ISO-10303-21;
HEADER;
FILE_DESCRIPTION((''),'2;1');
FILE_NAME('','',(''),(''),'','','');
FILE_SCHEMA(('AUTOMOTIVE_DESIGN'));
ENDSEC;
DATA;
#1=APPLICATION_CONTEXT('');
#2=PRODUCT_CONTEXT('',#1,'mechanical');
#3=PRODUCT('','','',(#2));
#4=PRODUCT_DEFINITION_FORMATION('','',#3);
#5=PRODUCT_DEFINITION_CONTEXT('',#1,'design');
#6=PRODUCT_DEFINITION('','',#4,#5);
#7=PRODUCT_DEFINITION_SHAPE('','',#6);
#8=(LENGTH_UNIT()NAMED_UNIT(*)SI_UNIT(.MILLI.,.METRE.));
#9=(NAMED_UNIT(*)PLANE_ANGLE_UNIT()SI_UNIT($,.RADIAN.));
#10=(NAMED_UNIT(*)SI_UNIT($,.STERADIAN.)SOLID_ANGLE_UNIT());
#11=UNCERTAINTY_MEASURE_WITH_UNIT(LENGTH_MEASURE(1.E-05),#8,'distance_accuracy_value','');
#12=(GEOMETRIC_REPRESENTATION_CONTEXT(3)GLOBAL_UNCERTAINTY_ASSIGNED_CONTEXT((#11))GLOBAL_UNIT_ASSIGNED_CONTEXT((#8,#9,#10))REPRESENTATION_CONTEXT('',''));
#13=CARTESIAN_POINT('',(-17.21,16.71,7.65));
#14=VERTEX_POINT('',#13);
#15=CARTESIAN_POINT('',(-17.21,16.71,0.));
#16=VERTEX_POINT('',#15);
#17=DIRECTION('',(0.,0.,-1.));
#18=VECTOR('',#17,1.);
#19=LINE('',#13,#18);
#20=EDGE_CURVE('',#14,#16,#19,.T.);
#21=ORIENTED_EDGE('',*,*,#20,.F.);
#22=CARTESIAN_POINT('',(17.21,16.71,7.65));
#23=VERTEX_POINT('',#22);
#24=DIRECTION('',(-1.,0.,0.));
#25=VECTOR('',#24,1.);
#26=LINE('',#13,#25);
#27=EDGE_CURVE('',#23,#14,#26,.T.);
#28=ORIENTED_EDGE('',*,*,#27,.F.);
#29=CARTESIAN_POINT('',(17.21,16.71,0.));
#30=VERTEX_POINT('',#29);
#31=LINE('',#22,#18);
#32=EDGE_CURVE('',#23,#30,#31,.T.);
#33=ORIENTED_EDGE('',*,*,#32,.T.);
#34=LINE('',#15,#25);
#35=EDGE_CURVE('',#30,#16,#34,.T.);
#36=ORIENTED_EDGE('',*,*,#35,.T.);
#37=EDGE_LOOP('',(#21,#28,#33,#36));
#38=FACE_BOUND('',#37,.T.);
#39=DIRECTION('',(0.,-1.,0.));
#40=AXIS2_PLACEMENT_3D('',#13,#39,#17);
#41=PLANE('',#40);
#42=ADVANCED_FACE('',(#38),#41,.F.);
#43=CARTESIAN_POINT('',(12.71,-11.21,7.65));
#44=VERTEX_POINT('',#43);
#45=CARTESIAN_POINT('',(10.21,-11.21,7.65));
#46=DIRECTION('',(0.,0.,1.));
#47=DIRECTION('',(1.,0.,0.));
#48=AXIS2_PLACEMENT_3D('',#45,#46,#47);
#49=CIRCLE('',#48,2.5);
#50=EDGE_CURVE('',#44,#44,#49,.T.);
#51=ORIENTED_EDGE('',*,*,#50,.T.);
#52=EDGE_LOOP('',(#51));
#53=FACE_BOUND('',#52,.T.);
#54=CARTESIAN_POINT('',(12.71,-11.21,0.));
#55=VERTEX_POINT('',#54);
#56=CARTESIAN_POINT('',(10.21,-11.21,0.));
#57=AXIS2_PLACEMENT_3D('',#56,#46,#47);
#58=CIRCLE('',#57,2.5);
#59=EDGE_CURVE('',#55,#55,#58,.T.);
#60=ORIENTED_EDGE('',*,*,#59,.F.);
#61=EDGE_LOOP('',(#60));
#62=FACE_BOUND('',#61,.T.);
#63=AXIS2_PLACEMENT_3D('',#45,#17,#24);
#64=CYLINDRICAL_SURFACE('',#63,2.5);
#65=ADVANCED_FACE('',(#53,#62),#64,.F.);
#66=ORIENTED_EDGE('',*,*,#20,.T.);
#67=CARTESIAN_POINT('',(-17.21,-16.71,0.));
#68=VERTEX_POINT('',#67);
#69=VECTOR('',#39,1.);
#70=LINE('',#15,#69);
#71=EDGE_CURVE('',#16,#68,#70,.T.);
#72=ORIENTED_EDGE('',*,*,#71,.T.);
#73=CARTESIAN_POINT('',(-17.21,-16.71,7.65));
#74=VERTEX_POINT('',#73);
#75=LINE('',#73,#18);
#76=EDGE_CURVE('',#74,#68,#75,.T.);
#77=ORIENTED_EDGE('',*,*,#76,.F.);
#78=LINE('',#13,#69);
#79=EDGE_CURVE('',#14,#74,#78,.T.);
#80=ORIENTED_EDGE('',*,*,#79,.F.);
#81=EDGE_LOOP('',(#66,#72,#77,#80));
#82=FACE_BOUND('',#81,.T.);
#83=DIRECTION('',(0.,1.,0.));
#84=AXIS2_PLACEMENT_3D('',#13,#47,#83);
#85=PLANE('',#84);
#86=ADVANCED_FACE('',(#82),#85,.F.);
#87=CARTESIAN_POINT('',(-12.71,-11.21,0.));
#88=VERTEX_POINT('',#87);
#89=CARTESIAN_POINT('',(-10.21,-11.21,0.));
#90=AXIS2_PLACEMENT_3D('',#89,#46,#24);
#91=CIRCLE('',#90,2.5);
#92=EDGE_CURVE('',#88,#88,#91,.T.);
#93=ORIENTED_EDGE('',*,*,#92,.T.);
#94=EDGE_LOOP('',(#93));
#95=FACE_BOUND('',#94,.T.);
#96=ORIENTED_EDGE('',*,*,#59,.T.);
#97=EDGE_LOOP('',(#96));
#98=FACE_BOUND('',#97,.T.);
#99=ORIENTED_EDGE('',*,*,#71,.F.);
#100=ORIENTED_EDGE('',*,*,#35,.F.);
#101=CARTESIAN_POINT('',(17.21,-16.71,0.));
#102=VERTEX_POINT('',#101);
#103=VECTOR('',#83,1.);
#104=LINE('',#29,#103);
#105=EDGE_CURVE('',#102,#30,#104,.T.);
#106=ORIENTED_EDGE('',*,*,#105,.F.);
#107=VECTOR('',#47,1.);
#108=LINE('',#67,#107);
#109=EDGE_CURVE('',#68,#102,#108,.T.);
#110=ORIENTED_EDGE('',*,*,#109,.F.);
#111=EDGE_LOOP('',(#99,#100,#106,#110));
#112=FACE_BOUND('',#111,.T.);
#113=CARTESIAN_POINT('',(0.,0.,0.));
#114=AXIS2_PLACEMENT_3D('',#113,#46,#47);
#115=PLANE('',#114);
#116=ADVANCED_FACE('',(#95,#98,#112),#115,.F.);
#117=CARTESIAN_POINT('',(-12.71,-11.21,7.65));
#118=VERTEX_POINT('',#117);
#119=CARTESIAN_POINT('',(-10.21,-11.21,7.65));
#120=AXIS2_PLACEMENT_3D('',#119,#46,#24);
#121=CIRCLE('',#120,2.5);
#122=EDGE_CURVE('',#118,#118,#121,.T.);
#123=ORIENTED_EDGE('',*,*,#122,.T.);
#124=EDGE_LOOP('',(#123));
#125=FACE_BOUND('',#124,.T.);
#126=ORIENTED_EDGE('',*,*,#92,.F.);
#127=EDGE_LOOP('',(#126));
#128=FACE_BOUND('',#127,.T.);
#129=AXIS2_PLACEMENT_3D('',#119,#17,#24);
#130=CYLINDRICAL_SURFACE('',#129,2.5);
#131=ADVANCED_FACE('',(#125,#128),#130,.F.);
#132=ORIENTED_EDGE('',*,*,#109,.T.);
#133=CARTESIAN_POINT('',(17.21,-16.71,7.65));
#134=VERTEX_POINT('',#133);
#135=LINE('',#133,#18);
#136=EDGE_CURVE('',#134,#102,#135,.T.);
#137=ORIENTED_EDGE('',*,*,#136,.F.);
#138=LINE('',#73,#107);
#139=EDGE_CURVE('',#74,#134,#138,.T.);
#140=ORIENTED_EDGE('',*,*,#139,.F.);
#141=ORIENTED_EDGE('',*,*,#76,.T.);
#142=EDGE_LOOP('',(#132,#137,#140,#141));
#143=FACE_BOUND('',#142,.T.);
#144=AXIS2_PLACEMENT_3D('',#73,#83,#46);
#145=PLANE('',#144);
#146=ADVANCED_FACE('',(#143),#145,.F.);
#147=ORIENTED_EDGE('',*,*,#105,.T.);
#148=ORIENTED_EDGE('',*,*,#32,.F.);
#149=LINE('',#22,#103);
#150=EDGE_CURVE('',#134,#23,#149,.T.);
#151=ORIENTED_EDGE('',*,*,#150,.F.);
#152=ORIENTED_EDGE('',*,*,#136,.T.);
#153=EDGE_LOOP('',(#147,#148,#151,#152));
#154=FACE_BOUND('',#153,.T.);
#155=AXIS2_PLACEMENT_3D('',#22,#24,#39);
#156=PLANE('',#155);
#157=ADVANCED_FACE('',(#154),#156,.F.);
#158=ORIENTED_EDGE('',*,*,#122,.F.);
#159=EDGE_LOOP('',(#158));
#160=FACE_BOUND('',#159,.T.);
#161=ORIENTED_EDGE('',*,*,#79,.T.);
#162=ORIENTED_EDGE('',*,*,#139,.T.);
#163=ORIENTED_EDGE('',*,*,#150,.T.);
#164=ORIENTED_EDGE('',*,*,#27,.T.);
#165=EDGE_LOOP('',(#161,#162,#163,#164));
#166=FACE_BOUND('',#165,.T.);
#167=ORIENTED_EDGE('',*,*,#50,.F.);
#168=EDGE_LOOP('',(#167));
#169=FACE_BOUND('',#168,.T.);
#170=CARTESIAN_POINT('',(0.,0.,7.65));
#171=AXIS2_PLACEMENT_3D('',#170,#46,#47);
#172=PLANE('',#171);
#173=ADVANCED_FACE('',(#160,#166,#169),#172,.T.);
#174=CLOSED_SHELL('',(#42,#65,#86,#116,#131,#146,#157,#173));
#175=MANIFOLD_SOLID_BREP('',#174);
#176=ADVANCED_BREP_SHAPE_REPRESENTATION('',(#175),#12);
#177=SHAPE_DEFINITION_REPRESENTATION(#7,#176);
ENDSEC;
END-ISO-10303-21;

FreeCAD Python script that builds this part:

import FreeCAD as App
import Part
import Sketcher

V = App.Vector

doc = App.newDocument("Part")
body = doc.addObject("PartDesign::Body", "Body")

# Sketch on XY plane
sketch1 = body.newObject("Sketcher::SketchObject", "Sketch")
sketch1.AttachmentSupport = (doc.getObject("XY_Plane"), [""])
sketch1.MapMode = "FlatFace"
sketch1.addGeometry(Part.LineSegment(V(-17.21, 16.71, 0), V(-17.21, -16.71, 0)), False)
sketch1.addGeometry(Part.LineSegment(V(-17.21, -16.71, 0), V(17.21, -16.71, 0)), False)
sketch1.addGeometry(Part.LineSegment(V(17.21, -16.71, 0), V(17.21, 16.71, 0)), False)
sketch1.addGeometry(Part.LineSegment(V(17.21, 16.71, 0), V(-17.21, 16.71, 0)), False)
sketch1.addGeometry(Part.Circle(V(-10.21, -11.21, 0), V(0, 0, 1), 2.5), False)
sketch1.addGeometry(Part.Circle(V(10.21, -11.21, 0), V(0, 0, 1), 2.5), False)
sketch1.addConstraint(Sketcher.Constraint("Coincident", 0, 2, 1, 1))
sketch1.addConstraint(Sketcher.Constraint("Coincident", 1, 2, 2, 1))
sketch1.addConstraint(Sketcher.Constraint("Coincident", 2, 2, 3, 1))
sketch1.addConstraint(Sketcher.Constraint("Coincident", 3, 2, 0, 1))
sketch1.addConstraint(Sketcher.Constraint("Vertical", 0))
sketch1.addConstraint(Sketcher.Constraint("Horizontal", 1))
sketch1.addConstraint(Sketcher.Constraint("Vertical", 2))
sketch1.addConstraint(Sketcher.Constraint("Horizontal", 3))
sketch1.addConstraint(Sketcher.Constraint("Equal", 4, 5))
sketch1.addConstraint(Sketcher.Constraint("Symmetric", 0, 2, 2, 2, -1, 1))
sketch1.addConstraint(Sketcher.Constraint("Symmetric", 4, 3, 5, 3, -2))
sketch1.addConstraint(Sketcher.Constraint("Diameter", 4, 5.0))
sketch1.addConstraint(Sketcher.Constraint("DistanceX", 0, 2, 4, 3, 7.0))
sketch1.addConstraint(Sketcher.Constraint("DistanceX", 1, 1, 1, 2, 34.42))
sketch1.addConstraint(Sketcher.Constraint("DistanceY", 0, 2, 0, 1, 33.42))
sketch1.addConstraint(Sketcher.Constraint("DistanceY", 0, 2, 4, 3, 5.5))
pad1 = body.newObject("PartDesign::Pad", "Pad")
pad1.Profile = sketch1
pad1.Length = 7.65

doc.recompute()
